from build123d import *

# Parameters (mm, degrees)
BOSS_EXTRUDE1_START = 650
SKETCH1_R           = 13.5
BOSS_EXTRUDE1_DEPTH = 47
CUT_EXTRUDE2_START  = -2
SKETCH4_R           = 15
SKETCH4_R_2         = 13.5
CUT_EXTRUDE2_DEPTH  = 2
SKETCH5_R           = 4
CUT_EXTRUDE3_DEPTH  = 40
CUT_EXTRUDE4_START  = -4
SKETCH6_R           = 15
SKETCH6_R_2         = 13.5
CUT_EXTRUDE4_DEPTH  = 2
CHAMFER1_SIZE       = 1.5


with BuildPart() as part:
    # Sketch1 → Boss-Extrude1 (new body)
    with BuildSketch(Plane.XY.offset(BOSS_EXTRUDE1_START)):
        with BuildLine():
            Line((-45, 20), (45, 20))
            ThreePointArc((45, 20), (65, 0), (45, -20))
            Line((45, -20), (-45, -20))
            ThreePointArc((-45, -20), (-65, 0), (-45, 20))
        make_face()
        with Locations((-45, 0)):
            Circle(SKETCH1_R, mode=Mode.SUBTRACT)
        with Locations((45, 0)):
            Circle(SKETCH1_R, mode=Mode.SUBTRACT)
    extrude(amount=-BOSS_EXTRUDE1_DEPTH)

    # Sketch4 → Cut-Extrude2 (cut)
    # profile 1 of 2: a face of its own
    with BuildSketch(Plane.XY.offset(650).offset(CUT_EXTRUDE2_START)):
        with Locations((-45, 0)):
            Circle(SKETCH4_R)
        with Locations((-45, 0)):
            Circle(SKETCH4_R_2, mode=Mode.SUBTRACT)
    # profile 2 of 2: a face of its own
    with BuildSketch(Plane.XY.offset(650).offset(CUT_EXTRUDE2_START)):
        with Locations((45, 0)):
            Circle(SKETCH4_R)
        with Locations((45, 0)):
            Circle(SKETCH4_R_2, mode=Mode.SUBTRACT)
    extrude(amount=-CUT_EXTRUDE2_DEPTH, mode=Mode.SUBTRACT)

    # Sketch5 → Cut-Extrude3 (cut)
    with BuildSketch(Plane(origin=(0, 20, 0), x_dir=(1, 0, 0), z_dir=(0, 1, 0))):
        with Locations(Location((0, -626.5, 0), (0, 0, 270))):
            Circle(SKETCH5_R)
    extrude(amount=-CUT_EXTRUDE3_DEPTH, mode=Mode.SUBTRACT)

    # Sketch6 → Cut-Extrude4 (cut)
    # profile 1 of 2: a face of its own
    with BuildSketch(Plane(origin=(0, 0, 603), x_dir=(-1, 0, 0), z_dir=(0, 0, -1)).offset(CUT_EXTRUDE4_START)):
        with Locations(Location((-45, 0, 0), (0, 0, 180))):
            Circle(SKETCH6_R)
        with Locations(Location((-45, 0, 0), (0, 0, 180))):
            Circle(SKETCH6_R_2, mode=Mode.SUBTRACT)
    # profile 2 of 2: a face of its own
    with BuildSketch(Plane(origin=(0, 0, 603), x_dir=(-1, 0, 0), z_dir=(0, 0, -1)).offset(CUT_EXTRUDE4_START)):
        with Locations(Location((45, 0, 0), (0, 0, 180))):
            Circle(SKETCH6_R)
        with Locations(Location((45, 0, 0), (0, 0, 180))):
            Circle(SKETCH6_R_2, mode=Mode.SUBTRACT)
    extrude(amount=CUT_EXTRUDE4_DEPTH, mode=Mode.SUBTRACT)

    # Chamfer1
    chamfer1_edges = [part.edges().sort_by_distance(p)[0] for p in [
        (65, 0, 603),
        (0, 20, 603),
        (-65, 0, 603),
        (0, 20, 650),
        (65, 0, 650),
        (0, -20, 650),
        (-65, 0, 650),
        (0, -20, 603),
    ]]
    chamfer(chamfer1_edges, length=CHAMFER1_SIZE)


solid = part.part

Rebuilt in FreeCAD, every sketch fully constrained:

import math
import FreeCAD as App
import Part
import Sketcher

V = App.Vector


def edges_at(feature, points):
    """Names of the edges that pass closest to the given points."""
    edges = feature.Shape.Edges
    near = lambda p: min(range(len(edges)), key=lambda i: edges[i].distToShape(Part.Vertex(*p))[0])
    return sorted({f"Edge{near(p) + 1}" for p in points})

doc = App.newDocument("Part")
body = doc.addObject("PartDesign::Body", "Body")

# Sketch on XY plane
sketch1 = body.newObject("Sketcher::SketchObject", "Sketch")
sketch1.AttachmentSupport = (doc.getObject("XY_Plane"), [""])
sketch1.MapMode = "FlatFace"
sketch1.AttachmentOffset = App.Placement(V(0, 0, 650), App.Rotation())
sketch1.addGeometry([
    Part.LineSegment(V(45, 20, 0), V(-45, 20, 0)),  # 0
    Part.ArcOfCircle(Part.Circle(V(-45, 0, 0), V(0, 0, 1), 20), math.radians(90), math.radians(270)),  # 1
    Part.LineSegment(V(-45, -20, 0), V(45, -20, 0)),  # 2
    Part.ArcOfCircle(Part.Circle(V(45, 0, 0), V(0, 0, 1), 20), math.radians(-90), math.radians(90)),  # 3
    Part.Circle(V(45, 0, 0), V(0, 0, 1), 14),  # 4
    Part.Circle(V(-45, 0, 0), V(0, 0, 1), 14),  # 5
], False)
sketch1.addConstraint([
    Sketcher.Constraint("Tangent", 0, 2, 1, 1),
    Sketcher.Constraint("Tangent", 1, 2, 2, 1),
    Sketcher.Constraint("Tangent", 2, 2, 3, 1),
    Sketcher.Constraint("Tangent", 3, 2, 0, 1),
    Sketcher.Constraint("Horizontal", 0),
    Sketcher.Constraint("Horizontal", 2),
    Sketcher.Constraint("Coincident", 4, 3, 3, 3),
    Sketcher.Constraint("Coincident", 5, 3, 1, 3),
    Sketcher.Constraint("Equal", 4, 5),
    Sketcher.Constraint("Symmetric", 1, 3, 3, 3, -1, 1),
    Sketcher.Constraint("Diameter", 4, 27.0),
    Sketcher.Constraint("Radius", 1, 20.0),
    Sketcher.Constraint("DistanceX", 0, 2, 0, 1, 90.0),
])
pad1 = body.newObject("PartDesign::Pad", "Pad")
pad1.Profile = sketch1
pad1.Length = 47
pad1.Reversed = True

# Sketch on XY plane
sketch2 = body.newObject("Sketcher::SketchObject", "Sketch001")
sketch2.AttachmentSupport = (doc.getObject("XY_Plane"), [""])
sketch2.MapMode = "FlatFace"
sketch2.AttachmentOffset = App.Placement(V(0, 0, 648), App.Rotation())
sketch2.addGeometry([
    Part.Circle(V(-45, 0, 0), V(0, 0, 1), 15),
    Part.Circle(V(-45, 0, 0), V(0, 0, 1), 14),
    Part.Circle(V(45, 0, 0), V(0, 0, 1), 15),
    Part.Circle(V(45, 0, 0), V(0, 0, 1), 14),
], False)
sketch2.addConstraint([
    Sketcher.Constraint("Coincident", 1, 3, 0, 3),
    Sketcher.Constraint("Coincident", 3, 3, 2, 3),
    Sketcher.Constraint("Equal", 0, 2),
    Sketcher.Constraint("Equal", 1, 3),
    Sketcher.Constraint("Symmetric", 0, 3, 2, 3, -1, 1),
    Sketcher.Constraint("PointOnObject", 0, 3, -1),
    Sketcher.Constraint("Diameter", 0, 30.0),
    Sketcher.Constraint("Diameter", 1, 27.0),
    Sketcher.Constraint("DistanceX", 0, 3, -1, 1, 45.0),
])
pocket1 = body.newObject("PartDesign::Pocket", "Pocket")
pocket1.Profile = sketch2
pocket1.Length = 2

# Sketch on XZ plane
sketch3 = body.newObject("Sketcher::SketchObject", "Sketch002")
sketch3.AttachmentSupport = (doc.getObject("XZ_Plane"), [""])
sketch3.MapMode = "FlatFace"
sketch3.AttachmentOffset = App.Placement(V(0, 0, -20), App.Rotation())
sketch3.addGeometry(Part.Circle(V(0, 626.5, 0), V(0, 0, 1), 4), False)
sketch3.addConstraint([
    Sketcher.Constraint("PointOnObject", 0, 3, -2),
    Sketcher.Constraint("Diameter", 0, 8.0),
    Sketcher.Constraint("DistanceY", -1, 1, 0, 3, 626.5),
])
pocket2 = body.newObject("PartDesign::Pocket", "Pocket001")
pocket2.Profile = sketch3
pocket2.Length = 40
pocket2.Reversed = True

# Sketch on XY plane
sketch4 = body.newObject("Sketcher::SketchObject", "Sketch003")
sketch4.AttachmentSupport = (doc.getObject("XY_Plane"), [""])
sketch4.MapMode = "FlatFace"
sketch4.AttachmentOffset = App.Placement(V(0, 0, 607), App.Rotation())
sketch4.addGeometry([
    Part.Circle(V(45, 0, 0), V(0, 0, 1), 15),
    Part.Circle(V(45, 0, 0), V(0, 0, 1), 14),
    Part.Circle(V(-45, 0, 0), V(0, 0, 1), 15),
    Part.Circle(V(-45, 0, 0), V(0, 0, 1), 14),
], False)
sketch4.addConstraint([
    Sketcher.Constraint("Coincident", 1, 3, 0, 3),
    Sketcher.Constraint("Coincident", 3, 3, 2, 3),
    Sketcher.Constraint("Equal", 0, 2),
    Sketcher.Constraint("Equal", 1, 3),
    Sketcher.Constraint("Symmetric", 0, 3, 2, 3, -1, 1),
    Sketcher.Constraint("PointOnObject", 0, 3, -1),
    Sketcher.Constraint("Diameter", 0, 30.0),
    Sketcher.Constraint("Diameter", 1, 27.0),
    Sketcher.Constraint("DistanceX", -1, 1, 0, 3, 45.0),
])
pocket3 = body.newObject("PartDesign::Pocket", "Pocket002")
pocket3.Profile = sketch4
pocket3.Length = 2
doc.recompute()

chamfer = body.newObject("PartDesign::Chamfer", "Chamfer")
chamfer.Base = (pocket3, edges_at(pocket3, [
    (65, 0, 603),
    (0, 20, 603),
    (-65, 0, 603),
    (0, 20, 650),
    (65, 0, 650),
    (0, -20, 650),
    (-65, 0, 650),
    (0, -20, 603),
]))
chamfer.Size = 1.5

doc.recompute()
